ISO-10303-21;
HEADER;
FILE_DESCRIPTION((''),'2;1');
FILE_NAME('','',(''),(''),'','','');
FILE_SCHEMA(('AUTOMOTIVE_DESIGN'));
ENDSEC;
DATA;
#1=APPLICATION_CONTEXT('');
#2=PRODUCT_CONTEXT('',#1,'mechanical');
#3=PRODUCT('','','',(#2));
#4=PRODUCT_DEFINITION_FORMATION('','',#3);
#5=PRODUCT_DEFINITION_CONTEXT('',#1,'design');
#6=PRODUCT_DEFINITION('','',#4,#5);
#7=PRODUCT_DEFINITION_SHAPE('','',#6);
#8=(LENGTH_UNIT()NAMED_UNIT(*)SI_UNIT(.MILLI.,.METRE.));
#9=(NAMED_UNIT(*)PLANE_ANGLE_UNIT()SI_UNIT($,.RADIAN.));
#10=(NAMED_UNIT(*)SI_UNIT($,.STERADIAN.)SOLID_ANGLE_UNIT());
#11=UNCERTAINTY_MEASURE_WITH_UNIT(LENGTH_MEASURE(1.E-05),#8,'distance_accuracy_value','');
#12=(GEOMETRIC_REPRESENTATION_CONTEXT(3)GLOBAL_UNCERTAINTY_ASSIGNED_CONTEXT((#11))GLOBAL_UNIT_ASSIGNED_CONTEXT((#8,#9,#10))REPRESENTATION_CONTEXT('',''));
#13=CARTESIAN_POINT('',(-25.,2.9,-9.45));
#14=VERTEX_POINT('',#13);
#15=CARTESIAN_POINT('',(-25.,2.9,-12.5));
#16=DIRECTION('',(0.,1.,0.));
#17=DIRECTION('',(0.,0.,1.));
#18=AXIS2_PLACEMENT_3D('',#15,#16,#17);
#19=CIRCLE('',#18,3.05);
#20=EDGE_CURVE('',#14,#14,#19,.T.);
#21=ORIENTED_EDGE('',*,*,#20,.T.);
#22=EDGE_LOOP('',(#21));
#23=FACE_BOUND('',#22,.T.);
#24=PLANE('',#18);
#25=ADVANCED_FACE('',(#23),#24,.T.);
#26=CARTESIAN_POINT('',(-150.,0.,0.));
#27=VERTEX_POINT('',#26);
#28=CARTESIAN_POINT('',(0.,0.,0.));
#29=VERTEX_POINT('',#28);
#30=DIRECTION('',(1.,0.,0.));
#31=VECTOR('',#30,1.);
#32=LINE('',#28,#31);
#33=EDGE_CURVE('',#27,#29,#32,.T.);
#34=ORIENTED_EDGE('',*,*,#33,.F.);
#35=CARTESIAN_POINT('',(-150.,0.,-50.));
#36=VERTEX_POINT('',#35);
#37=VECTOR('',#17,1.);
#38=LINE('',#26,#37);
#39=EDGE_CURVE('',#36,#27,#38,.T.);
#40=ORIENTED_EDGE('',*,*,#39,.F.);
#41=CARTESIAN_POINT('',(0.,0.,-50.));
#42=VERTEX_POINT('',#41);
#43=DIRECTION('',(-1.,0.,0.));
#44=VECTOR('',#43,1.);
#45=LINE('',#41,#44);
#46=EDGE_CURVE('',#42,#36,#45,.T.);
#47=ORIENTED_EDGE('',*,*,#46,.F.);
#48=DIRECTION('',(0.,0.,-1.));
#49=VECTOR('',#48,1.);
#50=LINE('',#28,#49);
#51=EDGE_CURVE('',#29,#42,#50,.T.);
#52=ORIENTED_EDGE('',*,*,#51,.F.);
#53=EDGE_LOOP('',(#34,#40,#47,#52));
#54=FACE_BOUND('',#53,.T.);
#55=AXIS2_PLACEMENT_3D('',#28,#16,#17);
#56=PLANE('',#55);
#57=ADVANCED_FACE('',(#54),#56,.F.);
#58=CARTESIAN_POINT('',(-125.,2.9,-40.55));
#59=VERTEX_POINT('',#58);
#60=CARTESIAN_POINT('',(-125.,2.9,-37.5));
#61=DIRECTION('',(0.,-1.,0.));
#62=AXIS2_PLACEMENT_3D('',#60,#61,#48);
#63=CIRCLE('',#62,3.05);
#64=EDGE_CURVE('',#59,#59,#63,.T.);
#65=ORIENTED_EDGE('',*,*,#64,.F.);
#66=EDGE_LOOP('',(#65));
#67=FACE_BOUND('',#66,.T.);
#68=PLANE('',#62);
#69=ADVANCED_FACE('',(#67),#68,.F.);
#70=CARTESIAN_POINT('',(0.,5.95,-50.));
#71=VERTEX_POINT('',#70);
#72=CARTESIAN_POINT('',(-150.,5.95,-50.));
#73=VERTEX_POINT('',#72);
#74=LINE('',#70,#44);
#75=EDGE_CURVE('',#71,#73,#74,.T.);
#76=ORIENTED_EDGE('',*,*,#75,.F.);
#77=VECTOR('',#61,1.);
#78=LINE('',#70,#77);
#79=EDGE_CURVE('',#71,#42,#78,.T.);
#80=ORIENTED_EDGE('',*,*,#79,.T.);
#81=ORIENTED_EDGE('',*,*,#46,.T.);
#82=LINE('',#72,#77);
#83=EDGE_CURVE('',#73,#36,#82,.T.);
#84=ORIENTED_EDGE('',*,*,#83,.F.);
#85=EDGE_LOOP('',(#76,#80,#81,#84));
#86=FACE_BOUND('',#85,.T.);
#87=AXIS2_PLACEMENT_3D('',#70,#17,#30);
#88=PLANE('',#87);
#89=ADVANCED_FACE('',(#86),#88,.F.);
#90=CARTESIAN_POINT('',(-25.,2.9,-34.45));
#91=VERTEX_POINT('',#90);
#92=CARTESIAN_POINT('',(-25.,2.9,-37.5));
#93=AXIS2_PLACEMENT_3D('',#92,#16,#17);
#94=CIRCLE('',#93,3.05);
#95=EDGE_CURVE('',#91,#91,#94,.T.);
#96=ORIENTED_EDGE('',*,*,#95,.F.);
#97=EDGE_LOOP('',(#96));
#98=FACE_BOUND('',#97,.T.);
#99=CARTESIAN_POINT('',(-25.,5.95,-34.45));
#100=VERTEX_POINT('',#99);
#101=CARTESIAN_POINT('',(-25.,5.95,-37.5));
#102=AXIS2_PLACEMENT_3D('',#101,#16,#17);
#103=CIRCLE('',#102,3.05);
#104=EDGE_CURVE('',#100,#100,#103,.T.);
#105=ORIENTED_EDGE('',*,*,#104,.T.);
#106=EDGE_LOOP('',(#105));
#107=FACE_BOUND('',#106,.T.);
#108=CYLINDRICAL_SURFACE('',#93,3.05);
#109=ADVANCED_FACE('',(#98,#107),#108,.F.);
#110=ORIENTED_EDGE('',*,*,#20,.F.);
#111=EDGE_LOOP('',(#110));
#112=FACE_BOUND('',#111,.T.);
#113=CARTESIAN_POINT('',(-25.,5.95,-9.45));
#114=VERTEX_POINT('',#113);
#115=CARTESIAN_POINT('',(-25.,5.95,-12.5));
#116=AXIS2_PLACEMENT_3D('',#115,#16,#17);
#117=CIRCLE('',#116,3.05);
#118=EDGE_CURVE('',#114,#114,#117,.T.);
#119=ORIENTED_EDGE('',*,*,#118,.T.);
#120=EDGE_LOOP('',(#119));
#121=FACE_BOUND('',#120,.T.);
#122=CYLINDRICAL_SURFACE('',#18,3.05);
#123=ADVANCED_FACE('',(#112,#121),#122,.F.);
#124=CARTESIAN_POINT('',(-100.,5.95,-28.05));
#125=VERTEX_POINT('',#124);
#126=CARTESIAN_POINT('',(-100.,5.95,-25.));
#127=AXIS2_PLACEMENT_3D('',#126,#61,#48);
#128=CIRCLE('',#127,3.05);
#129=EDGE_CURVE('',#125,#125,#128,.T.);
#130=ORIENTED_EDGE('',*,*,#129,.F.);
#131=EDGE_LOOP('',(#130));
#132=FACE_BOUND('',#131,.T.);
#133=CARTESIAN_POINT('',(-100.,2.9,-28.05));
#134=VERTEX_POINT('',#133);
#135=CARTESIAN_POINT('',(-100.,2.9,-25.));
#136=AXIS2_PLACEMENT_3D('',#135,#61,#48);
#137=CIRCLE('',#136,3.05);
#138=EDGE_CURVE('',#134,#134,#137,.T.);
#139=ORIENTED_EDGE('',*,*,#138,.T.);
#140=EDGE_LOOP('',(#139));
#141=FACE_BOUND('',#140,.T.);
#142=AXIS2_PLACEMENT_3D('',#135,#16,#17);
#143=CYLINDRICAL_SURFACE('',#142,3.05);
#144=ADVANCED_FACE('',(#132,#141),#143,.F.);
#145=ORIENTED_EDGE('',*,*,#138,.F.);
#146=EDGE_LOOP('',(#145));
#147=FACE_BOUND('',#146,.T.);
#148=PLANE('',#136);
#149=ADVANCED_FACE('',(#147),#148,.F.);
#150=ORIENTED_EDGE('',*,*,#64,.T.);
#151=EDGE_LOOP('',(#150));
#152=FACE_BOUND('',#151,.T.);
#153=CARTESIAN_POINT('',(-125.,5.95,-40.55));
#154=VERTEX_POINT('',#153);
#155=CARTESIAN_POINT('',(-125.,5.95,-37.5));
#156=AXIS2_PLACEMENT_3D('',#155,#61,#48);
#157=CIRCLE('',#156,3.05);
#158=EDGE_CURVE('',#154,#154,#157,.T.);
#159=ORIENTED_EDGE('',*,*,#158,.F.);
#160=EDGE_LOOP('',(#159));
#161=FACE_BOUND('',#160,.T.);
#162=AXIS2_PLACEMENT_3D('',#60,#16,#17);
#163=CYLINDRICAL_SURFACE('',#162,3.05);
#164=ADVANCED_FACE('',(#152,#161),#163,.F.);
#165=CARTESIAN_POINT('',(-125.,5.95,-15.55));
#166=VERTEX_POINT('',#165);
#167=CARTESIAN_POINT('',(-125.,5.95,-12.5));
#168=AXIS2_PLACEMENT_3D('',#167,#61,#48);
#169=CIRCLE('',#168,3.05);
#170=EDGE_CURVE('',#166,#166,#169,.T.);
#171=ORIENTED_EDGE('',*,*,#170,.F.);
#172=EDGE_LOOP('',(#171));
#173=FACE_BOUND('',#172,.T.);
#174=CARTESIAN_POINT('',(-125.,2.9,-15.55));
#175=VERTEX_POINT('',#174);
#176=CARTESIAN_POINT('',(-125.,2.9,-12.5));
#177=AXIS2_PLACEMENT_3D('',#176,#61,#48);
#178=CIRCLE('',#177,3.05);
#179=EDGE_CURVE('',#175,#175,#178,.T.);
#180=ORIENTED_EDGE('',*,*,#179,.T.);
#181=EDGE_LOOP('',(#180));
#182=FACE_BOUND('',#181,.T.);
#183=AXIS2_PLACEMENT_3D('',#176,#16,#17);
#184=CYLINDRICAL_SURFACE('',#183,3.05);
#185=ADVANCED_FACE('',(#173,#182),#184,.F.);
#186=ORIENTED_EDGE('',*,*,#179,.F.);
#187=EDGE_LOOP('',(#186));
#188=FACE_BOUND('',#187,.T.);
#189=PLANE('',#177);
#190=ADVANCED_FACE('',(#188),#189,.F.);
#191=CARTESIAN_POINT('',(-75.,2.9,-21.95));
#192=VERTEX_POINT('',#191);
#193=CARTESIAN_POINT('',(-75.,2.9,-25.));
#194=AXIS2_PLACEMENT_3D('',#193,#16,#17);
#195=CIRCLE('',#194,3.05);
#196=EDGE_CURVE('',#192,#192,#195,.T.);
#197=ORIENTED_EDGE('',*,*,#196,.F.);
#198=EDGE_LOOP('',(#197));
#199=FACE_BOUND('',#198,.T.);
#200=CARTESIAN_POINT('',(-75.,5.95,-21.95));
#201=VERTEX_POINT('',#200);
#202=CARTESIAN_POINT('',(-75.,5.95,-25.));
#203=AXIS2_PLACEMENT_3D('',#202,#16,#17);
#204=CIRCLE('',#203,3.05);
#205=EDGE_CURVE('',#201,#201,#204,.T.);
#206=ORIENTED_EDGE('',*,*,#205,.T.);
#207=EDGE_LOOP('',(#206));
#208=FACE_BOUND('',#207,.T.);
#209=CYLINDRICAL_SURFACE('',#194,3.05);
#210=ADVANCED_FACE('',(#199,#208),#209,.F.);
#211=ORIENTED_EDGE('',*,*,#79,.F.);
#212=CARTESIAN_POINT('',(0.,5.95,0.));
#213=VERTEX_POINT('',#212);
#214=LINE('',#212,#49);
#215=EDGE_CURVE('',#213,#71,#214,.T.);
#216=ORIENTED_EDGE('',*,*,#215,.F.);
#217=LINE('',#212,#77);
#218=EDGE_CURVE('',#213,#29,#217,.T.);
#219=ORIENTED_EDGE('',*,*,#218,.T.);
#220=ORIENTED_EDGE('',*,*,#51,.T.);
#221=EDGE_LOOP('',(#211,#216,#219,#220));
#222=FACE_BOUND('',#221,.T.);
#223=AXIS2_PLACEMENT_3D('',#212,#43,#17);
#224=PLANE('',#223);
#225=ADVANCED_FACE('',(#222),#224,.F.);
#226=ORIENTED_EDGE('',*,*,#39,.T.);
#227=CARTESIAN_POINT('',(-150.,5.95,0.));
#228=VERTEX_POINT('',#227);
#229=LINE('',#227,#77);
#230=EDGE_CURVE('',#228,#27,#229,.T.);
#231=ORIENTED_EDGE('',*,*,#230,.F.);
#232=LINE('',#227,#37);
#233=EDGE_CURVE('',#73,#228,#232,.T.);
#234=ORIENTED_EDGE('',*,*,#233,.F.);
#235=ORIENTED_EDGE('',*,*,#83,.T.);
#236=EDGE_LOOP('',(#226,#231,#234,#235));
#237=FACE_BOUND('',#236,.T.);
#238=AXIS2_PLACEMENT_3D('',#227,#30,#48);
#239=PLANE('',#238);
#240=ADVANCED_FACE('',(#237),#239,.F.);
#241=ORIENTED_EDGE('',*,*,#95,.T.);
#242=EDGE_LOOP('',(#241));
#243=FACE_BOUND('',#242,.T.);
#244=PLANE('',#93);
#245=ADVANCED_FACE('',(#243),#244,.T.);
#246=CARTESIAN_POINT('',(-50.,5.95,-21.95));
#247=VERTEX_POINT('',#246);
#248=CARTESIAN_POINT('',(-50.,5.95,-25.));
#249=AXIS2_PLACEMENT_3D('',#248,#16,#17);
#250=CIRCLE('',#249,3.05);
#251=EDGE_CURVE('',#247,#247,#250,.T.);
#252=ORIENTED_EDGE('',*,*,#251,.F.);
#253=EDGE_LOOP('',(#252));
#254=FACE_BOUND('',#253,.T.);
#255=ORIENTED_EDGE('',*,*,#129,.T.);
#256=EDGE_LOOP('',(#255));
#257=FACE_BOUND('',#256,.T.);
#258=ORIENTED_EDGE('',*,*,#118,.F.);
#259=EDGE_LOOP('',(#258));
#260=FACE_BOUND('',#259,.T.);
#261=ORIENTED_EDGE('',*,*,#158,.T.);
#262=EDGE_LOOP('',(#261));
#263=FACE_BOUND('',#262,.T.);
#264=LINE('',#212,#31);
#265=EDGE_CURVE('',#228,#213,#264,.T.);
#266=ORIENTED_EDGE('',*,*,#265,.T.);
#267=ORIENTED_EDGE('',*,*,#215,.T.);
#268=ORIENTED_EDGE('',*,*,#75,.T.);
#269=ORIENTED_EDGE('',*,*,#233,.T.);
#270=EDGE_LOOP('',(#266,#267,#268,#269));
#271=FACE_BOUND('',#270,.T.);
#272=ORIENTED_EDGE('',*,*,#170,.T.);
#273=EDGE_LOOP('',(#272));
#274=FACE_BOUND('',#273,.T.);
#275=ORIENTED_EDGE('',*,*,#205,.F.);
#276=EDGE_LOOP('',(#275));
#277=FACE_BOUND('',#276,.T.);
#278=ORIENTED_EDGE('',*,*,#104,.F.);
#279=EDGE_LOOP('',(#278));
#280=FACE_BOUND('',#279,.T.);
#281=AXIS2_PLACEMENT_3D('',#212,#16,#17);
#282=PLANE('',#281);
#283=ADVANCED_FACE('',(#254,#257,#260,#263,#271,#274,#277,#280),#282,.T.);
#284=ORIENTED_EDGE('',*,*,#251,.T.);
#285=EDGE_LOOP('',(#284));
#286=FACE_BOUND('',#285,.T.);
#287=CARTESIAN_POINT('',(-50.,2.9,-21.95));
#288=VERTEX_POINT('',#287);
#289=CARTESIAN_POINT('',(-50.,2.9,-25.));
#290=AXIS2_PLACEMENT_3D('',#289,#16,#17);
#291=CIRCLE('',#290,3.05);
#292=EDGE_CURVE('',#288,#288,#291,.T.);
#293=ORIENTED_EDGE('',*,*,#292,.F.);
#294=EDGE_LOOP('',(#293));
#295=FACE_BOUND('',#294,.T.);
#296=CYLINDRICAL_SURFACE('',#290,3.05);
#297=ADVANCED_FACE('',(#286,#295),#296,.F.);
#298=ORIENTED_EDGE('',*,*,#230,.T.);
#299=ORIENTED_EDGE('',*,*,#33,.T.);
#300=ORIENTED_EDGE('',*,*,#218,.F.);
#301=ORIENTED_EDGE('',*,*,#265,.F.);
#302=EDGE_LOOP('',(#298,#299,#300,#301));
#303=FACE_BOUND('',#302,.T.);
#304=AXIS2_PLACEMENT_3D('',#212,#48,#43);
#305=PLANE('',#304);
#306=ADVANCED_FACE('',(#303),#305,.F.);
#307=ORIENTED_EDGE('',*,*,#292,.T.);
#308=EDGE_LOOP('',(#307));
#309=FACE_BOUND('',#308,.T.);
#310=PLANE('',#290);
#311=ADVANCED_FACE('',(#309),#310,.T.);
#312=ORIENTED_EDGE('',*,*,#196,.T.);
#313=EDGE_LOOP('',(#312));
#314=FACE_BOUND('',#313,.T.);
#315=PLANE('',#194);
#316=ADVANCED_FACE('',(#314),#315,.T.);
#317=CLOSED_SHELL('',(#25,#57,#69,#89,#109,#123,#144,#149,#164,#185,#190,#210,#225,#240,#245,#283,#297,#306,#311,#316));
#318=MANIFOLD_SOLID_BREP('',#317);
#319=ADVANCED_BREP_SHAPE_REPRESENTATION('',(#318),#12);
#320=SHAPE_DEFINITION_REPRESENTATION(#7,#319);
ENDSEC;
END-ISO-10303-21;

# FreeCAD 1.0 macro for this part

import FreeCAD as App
import Part
import Sketcher

doc = App.newDocument("Part")
body = doc.addObject("PartDesign::Body", "Body")

# Sketch on XZ plane
sketch1 = body.newObject("Sketcher::SketchObject", "Sketch")
sketch1.AttachmentSupport = (doc.getObject("XZ_Plane"), [""])
sketch1.MapMode = "FlatFace"
sketch1.addGeometry([
    Part.LineSegment(App.Vector(-150, -50, 0), App.Vector(-150, 0, 0)),
    Part.LineSegment(App.Vector(-150, 0, 0), App.Vector(0, 0, 0)),
    Part.LineSegment(App.Vector(0, 0, 0), App.Vector(0, -50, 0)),
    Part.LineSegment(App.Vector(0, -50, 0), App.Vector(-150, -50, 0)),
], False)
sketch1.addConstraint([
    Sketcher.Constraint("Coincident", 0, 2, 1, 1),
    Sketcher.Constraint("Coincident", 1, 2, 2, 1),
    Sketcher.Constraint("Coincident", 2, 2, 3, 1),
    Sketcher.Constraint("Coincident", 3, 2, 0, 1),
    Sketcher.Constraint("Vertical", 0),
    Sketcher.Constraint("Horizontal", 1),
    Sketcher.Constraint("Vertical", 2),
    Sketcher.Constraint("Horizontal", 3),
    Sketcher.Constraint("Coincident", 1, 2, -1, 1),
    Sketcher.Constraint("DistanceX", 1, 1, 1, 2, 150.0),
    Sketcher.Constraint("DistanceY", 0, 1, 0, 2, 50.0),
])
pad1 = body.newObject("PartDesign::Pad", "Pad")
pad1.Profile = sketch1
pad1.Length = 5.95
pad1.Reversed = True

# Sketch on XZ plane
sketch2 = body.newObject("Sketcher::SketchObject", "Sketch001")
sketch2.AttachmentSupport = (doc.getObject("XZ_Plane"), [""])
sketch2.MapMode = "FlatFace"
sketch2.AttachmentOffset = App.Placement(App.Vector(0, 0, -5.95), App.Rotation())
sketch2.addGeometry([
    Part.Circle(App.Vector(-25, -37.5, 0), App.Vector(0, 0, 1), 3.05),  # 0
    Part.Circle(App.Vector(-25, -12.5, 0), App.Vector(0, 0, 1), 3.05),  # 1
    Part.Circle(App.Vector(-50, -25, 0), App.Vector(0, 0, 1), 3.05),  # 2
    Part.Circle(App.Vector(-75, -25, 0), App.Vector(0, 0, 1), 3.05),  # 3
    Part.Circle(App.Vector(-100, -25, 0), App.Vector(0, 0, 1), 3.05),  # 4
    Part.Circle(App.Vector(-125, -12.5, 0), App.Vector(0, 0, 1), 3.05),  # 5
    Part.Circle(App.Vector(-125, -37.5, 0), App.Vector(0, 0, 1), 3.05),  # 6
], False)
sketch2.addConstraint([
    Sketcher.Constraint("Equal", 0, 1),
    Sketcher.Constraint("Equal", 1, 2),
    Sketcher.Constraint("Equal", 2, 3),
    Sketcher.Constraint("Equal", 3, 4),
    Sketcher.Constraint("Equal", 4, 5),
    Sketcher.Constraint("Equal", 5, 6),
    Sketcher.Constraint("Horizontal", 2, 3, 3, 3),
    Sketcher.Constraint("Horizontal", 3, 3, 4, 3),
    Sketcher.Constraint("Horizontal", 1, 3, 5, 3),
    Sketcher.Constraint("Horizontal", 0, 3, 6, 3),
    Sketcher.Constraint("Vertical", 0, 3, 1, 3),
    Sketcher.Constraint("Vertical", 5, 3, 6, 3),
    Sketcher.Constraint("Diameter", 0, 6.1),
    Sketcher.Constraint("DistanceX", 0, 3, -1, 1, 25.0),
    Sketcher.Constraint("DistanceX", 2, 3, -1, 1, 50.0),
    Sketcher.Constraint("DistanceY", 2, 3, -1, 1, 25.0),
    Sketcher.Constraint("DistanceX", 3, 3, -1, 1, 75.0),
    Sketcher.Constraint("DistanceX", 4, 3, -1, 1, 100.0),
    Sketcher.Constraint("DistanceX", 5, 3, -1, 1, 125.0),
    Sketcher.Constraint("DistanceY", 0, 3, 1, 3, 25.0),
    Sketcher.Constraint("DistanceY", 0, 3, -1, 1, 37.5),
])
pocket1 = body.newObject("PartDesign::Pocket", "Pocket")
pocket1.Profile = sketch2
pocket1.Length = 3.05
pocket1.Reversed = True

doc.recompute()
